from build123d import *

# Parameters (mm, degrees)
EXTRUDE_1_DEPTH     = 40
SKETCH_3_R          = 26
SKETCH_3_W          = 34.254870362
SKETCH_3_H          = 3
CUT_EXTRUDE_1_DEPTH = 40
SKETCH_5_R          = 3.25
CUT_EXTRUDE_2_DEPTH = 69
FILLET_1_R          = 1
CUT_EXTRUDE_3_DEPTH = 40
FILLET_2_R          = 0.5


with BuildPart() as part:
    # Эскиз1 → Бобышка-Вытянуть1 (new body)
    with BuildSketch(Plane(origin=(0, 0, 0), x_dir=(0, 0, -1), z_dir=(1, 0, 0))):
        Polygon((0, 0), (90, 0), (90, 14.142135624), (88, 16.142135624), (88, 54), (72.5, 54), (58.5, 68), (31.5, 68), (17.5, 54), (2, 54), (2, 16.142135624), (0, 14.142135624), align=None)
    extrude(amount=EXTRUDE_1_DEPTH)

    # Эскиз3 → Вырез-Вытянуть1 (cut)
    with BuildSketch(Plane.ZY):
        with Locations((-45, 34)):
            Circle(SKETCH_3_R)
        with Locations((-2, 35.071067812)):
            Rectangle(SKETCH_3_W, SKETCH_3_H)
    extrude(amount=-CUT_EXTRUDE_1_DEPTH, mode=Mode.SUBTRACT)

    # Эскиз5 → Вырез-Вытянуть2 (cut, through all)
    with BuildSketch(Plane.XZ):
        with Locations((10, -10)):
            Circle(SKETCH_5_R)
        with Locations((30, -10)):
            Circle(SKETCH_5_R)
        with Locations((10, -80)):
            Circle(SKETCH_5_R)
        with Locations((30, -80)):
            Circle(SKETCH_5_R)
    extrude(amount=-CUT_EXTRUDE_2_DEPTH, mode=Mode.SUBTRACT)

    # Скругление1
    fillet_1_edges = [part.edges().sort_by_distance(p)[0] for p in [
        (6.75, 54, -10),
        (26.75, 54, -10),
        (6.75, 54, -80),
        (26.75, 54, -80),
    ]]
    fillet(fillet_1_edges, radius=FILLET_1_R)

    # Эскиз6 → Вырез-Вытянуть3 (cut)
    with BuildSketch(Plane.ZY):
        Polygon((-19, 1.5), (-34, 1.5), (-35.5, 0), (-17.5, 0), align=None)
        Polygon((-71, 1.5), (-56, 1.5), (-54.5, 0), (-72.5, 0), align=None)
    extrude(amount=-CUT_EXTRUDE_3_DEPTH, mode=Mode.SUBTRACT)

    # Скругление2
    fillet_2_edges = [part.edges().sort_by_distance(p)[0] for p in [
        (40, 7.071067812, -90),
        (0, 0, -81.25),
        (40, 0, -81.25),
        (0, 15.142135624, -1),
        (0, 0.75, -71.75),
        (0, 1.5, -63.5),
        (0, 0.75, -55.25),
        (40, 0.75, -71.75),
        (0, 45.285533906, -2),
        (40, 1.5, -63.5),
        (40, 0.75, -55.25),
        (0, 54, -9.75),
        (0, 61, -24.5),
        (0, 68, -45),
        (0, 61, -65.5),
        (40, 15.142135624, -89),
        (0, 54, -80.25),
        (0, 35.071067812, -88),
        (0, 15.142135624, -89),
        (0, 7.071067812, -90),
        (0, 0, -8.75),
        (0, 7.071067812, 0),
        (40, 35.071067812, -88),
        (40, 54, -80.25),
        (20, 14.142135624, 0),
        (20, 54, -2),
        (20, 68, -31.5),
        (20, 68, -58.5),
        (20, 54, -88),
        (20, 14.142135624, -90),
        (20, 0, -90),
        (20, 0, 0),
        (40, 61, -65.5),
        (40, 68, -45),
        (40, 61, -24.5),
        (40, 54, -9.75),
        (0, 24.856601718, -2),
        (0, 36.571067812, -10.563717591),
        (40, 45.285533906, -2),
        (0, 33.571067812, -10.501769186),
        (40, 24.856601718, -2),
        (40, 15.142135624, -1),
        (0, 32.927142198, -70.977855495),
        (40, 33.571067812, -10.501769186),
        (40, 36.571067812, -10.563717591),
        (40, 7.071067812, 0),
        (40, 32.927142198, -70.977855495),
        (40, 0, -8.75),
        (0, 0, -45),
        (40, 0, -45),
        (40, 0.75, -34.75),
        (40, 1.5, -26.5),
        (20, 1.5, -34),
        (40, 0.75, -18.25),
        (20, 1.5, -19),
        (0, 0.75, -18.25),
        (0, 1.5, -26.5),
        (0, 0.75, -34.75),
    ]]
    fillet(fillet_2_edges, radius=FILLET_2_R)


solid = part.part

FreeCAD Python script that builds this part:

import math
import FreeCAD as App
import Part
import Sketcher
from FreeCAD import Vector
Q = App.Units.Quantity


def edges_at(feature, points):
    """Names of the edges that pass closest to the given points."""
    edges = feature.Shape.Edges
    near = lambda p: min(range(len(edges)), key=lambda i: edges[i].distToShape(Part.Vertex(*p))[0])
    return sorted({f"Edge{near(p) + 1}" for p in points})

doc = App.newDocument("Part")
body = doc.addObject("PartDesign::Body", "Body")

# Sketch on YZ plane
sketch1 = doc.addObject("Sketcher::SketchObject", "Sketch")
body.addObject(sketch1)
sketch1.AttachmentSupport = (doc.YZ_Plane, [""])
sketch1.MapMode = "FlatFace"
sketch1.addGeometry([
    Part.LineSegment(Vector(0, 0, 0), Vector(0, -90, 0)),  # 0
    Part.LineSegment(Vector(0, -90, 0), Vector(14.1, -90, 0)),  # 1
    Part.LineSegment(Vector(14.1, -90, 0), Vector(16.1, -88, 0)),  # 2
    Part.LineSegment(Vector(16.1, -88, 0), Vector(54, -88, 0)),  # 3
    Part.LineSegment(Vector(54, -88, 0), Vector(54, -72.5, 0)),  # 4
    Part.LineSegment(Vector(54, -72.5, 0), Vector(68, -58.5, 0)),  # 5
    Part.LineSegment(Vector(68, -58.5, 0), Vector(68, -31.5, 0)),  # 6
    Part.LineSegment(Vector(68, -31.5, 0), Vector(54, -17.5, 0)),  # 7
    Part.LineSegment(Vector(54, -17.5, 0), Vector(54, -2, 0)),  # 8
    Part.LineSegment(Vector(54, -2, 0), Vector(16.1, -2, 0)),  # 9
    Part.LineSegment(Vector(16.1, -2, 0), Vector(14.1, 0, 0)),  # 10
    Part.LineSegment(Vector(14.1, 0, 0), Vector(0, 0, 0)),  # 11
], False)
sketch1.addConstraint([
    Sketcher.Constraint("Coincident", 0, 2, 1, 1),
    Sketcher.Constraint("Coincident", 1, 2, 2, 1),
    Sketcher.Constraint("Coincident", 2, 2, 3, 1),
    Sketcher.Constraint("Coincident", 3, 2, 4, 1),
    Sketcher.Constraint("Coincident", 4, 2, 5, 1),
    Sketcher.Constraint("Coincident", 5, 2, 6, 1),
    Sketcher.Constraint("Coincident", 6, 2, 7, 1),
    Sketcher.Constraint("Coincident", 7, 2, 8, 1),
    Sketcher.Constraint("Coincident", 8, 2, 9, 1),
    Sketcher.Constraint("Coincident", 9, 2, 10, 1),
    Sketcher.Constraint("Coincident", 10, 2, 11, 1),
    Sketcher.Constraint("Coincident", 11, 2, 0, 1),
    Sketcher.Constraint("Vertical", 0),
    Sketcher.Constraint("Horizontal", 1),
    Sketcher.Constraint("Horizontal", 3),
    Sketcher.Constraint("Vertical", 4),
    Sketcher.Constraint("Vertical", 6),
    Sketcher.Constraint("Vertical", 8),
    Sketcher.Constraint("Horizontal", 9),
    Sketcher.Constraint("Horizontal", 11),
    Sketcher.Constraint("Coincident", 11, 2, -1, 1),
    Sketcher.Constraint("Parallel", 2, 5),
    Sketcher.Constraint("Perpendicular", 5, 7),
    Sketcher.Constraint("Parallel", 7, 10),
    Sketcher.Constraint("Vertical", 4, 2, 7, 2),
    Sketcher.Constraint("Vertical", 2, 2, 9, 2),
    Sketcher.Constraint("Vertical", 1, 2, 10, 2),
    Sketcher.Constraint("Equal", 4, 8),
    Sketcher.Constraint("Equal", 5, 7),
    Sketcher.Constraint("DistanceY", 0, 2, 0, 1, Q("90 mm")),
    Sketcher.Constraint("DistanceY", 6, 1, 6, 2, Q("27 mm")),
    Sketcher.Constraint("DistanceY", 4, 1, 4, 2, Q("15.5 mm")),
    Sketcher.Constraint("DistanceY", 2, 2, -1, 1, Q("88 mm")),
    Sketcher.Constraint("DistanceX", -1, 1, 3, 2, Q("54 mm")),
    Sketcher.Constraint("DistanceX", 1, 1, 1, 2, Q("14.142136 mm")),
])
pad1 = doc.addObject("PartDesign::Pad", "Pad")
body.addObject(pad1)
pad1.Profile = sketch1
pad1.Length = 40

# Sketch on YZ plane
sketch2 = doc.addObject("Sketcher::SketchObject", "Sketch001")
body.addObject(sketch2)
sketch2.AttachmentSupport = (doc.YZ_Plane, [""])
sketch2.MapMode = "FlatFace"
sketch2.addGeometry([
    Part.LineSegment(Vector(36.6, 15.1, 0), Vector(36.6, -19.1, 0)),
    Part.ArcOfCircle(Part.Circle(Vector(34, -45, 0), Vector(0, 0, 1), 26), math.radians(91), math.radians(444)),
    Part.LineSegment(Vector(33.6, -19, 0), Vector(33.6, 15.1, 0)),
    Part.LineSegment(Vector(33.6, 15.1, 0), Vector(36.6, 15.1, 0)),
], False)
sketch2.addConstraint([
    Sketcher.Constraint("Coincident", 0, 2, 1, 2),
    Sketcher.Constraint("Coincident", 1, 1, 2, 1),
    Sketcher.Constraint("Coincident", 2, 2, 3, 1),
    Sketcher.Constraint("Coincident", 3, 2, 0, 1),
    Sketcher.Constraint("Vertical", 0),
    Sketcher.Constraint("Vertical", 2),
    Sketcher.Constraint("Horizontal", 3),
    Sketcher.Constraint("Radius", 1, Q("26 mm")),
    Sketcher.Constraint("DistanceX", 3, 1, 3, 2, Q("3 mm")),
    Sketcher.Constraint("DistanceX", -1, 1, 1, 3, Q("34 mm")),
    Sketcher.Constraint("DistanceY", 1, 3, -1, 1, Q("45 mm")),
    Sketcher.Constraint("DistanceY", 0, 2, 0, 1, Q("34.25487 mm")),
    Sketcher.Constraint("DistanceY", 2, 1, 2, 2, Q("34.130974 mm")),
])
pocket1 = doc.addObject("PartDesign::Pocket", "Pocket")
body.addObject(pocket1)
pocket1.Profile = sketch2
pocket1.Length = 40
pocket1.Reversed = True

# Sketch on XZ plane
sketch3 = doc.addObject("Sketcher::SketchObject", "Sketch002")
body.addObject(sketch3)
sketch3.AttachmentSupport = (doc.XZ_Plane, [""])
sketch3.MapMode = "FlatFace"
sketch3.addGeometry([
    Part.Circle(Vector(10, -10, 0), Vector(0, 0, 1), 3.2),
    Part.Circle(Vector(30, -10, 0), Vector(0, 0, 1), 3.2),
    Part.Circle(Vector(10, -80, 0), Vector(0, 0, 1), 3.2),
    Part.Circle(Vector(30, -80, 0), Vector(0, 0, 1), 3.2),
], False)
sketch3.addConstraint([
    Sketcher.Constraint("Equal", 0, 1),
    Sketcher.Constraint("Equal", 1, 2),
    Sketcher.Constraint("Equal", 2, 3),
    Sketcher.Constraint("Horizontal", 0, 3, 1, 3),
    Sketcher.Constraint("Horizontal", 2, 3, 3, 3),
    Sketcher.Constraint("Vertical", 0, 3, 2, 3),
    Sketcher.Constraint("Vertical", 1, 3, 3, 3),
    Sketcher.Constraint("Diameter", 0, Q("6.5 mm")),
    Sketcher.Constraint("DistanceX", -1, 1, 0, 3, Q("10 mm")),
    Sketcher.Constraint("DistanceY", 0, 3, -1, 1, Q("10 mm")),
    Sketcher.Constraint("DistanceX", -1, 1, 1, 3, Q("30 mm")),
    Sketcher.Constraint("DistanceY", 2, 3, -1, 1, Q("80 mm")),
])
pocket2 = doc.addObject("PartDesign::Pocket", "Pocket001")
body.addObject(pocket2)
pocket2.Profile = sketch3
pocket2.Type = "ThroughAll"
doc.recompute()

fillet = doc.addObject("PartDesign::Fillet", "Fillet")
body.addObject(fillet)
fillet.Base = (pocket2, edges_at(pocket2, [
    (6.75, 54, -10),
    (26.75, 54, -10),
    (6.75, 54, -80),
    (26.75, 54, -80),
]))
fillet.Radius = 1

# Sketch on YZ plane
sketch4 = doc.addObject("Sketcher::SketchObject", "Sketch003")
body.addObject(sketch4)
sketch4.AttachmentSupport = (doc.YZ_Plane, [""])
sketch4.MapMode = "FlatFace"
sketch4.addGeometry([
    Part.LineSegment(Vector(1.5, -19, 0), Vector(1.5, -34, 0)),  # 0
    Part.LineSegment(Vector(1.5, -34, 0), Vector(0, -35.5, 0)),  # 1
    Part.LineSegment(Vector(0, -35.5, 0), Vector(0, -17.5, 0)),  # 2
    Part.LineSegment(Vector(0, -17.5, 0), Vector(1.5, -19, 0)),  # 3
    Part.LineSegment(Vector(1.5, -56, 0), Vector(1.5, -71, 0)),  # 4
    Part.LineSegment(Vector(1.5, -71, 0), Vector(0, -72.5, 0)),  # 5
    Part.LineSegment(Vector(0, -72.5, 0), Vector(0, -54.5, 0)),  # 6
    Part.LineSegment(Vector(0, -54.5, 0), Vector(1.5, -56, 0)),  # 7
], False)
sketch4.addConstraint([
    Sketcher.Constraint("Coincident", 0, 2, 1, 1),
    Sketcher.Constraint("Coincident", 1, 2, 2, 1),
    Sketcher.Constraint("Coincident", 2, 2, 3, 1),
    Sketcher.Constraint("Coincident", 3, 2, 0, 1),
    Sketcher.Constraint("Coincident", 4, 2, 5, 1),
    Sketcher.Constraint("Coincident", 5, 2, 6, 1),
    Sketcher.Constraint("Coincident", 6, 2, 7, 1),
    Sketcher.Constraint("Coincident", 7, 2, 4, 1),
    Sketcher.Constraint("Vertical", 0),
    Sketcher.Constraint("Vertical", 2),
    Sketcher.Constraint("Vertical", 4),
    Sketcher.Constraint("Vertical", 6),
    Sketcher.Constraint("PointOnObject", 1, 2, -2),
    Sketcher.Constraint("PointOnObject", 5, 2, -2),
    Sketcher.Constraint("Perpendicular", 1, 3),
    Sketcher.Constraint("Perpendicular", 3, 5),
    Sketcher.Constraint("Perpendicular", 5, 7),
    Sketcher.Constraint("Vertical", 3, 2, 4, 2),
    Sketcher.Constraint("Equal", 0, 4),
    Sketcher.Constraint("Equal", 1, 3),
    Sketcher.Constraint("DistanceY", 0, 2, 0, 1, Q("15 mm")),
    Sketcher.Constraint("DistanceY", 2, 1, 2, 2, Q("18 mm")),
    Sketcher.Constraint("DistanceY", 0, 2, -1, 1, Q("34 mm")),
    Sketcher.Constraint("DistanceY", 4, 2, -1, 1, Q("71 mm")),
])
pocket3 = doc.addObject("PartDesign::Pocket", "Pocket002")
body.addObject(pocket3)
pocket3.Profile = sketch4
pocket3.Length = 40
pocket3.Reversed = True
doc.recompute()

fillet2 = doc.addObject("PartDesign::Fillet", "Fillet001")
body.addObject(fillet2)
fillet2.Base = (pocket3, edges_at(pocket3, [
    (40, 7.071, -90),
    (0, 0, -81.25),
    (40, 0, -81.25),
    (0, 15.142, -1),
    (0, 0.75, -71.75),
    (0, 1.5, -63.5),
    (0, 0.75, -55.25),
    (40, 0.75, -71.75),
    (0, 45.286, -2),
    (40, 1.5, -63.5),
    (40, 0.75, -55.25),
    (0, 54, -9.75),
    (0, 61, -24.5),
    (0, 68, -45),
    (0, 61, -65.5),
    (40, 15.142, -89),
    (0, 54, -80.25),
    (0, 35.071, -88),
    (0, 15.142, -89),
    (0, 7.071, -90),
    (0, 0, -8.75),
    (0, 7.071, 0),
    (40, 35.071, -88),
    (40, 54, -80.25),
    (20, 14.142, 0),
    (20, 54, -2),
    (20, 68, -31.5),
    (20, 68, -58.5),
    (20, 54, -88),
    (20, 14.142, -90),
    (20, 0, -90),
    (20, 0, 0),
    (40, 61, -65.5),
    (40, 68, -45),
    (40, 61, -24.5),
    (40, 54, -9.75),
    (0, 24.857, -2),
    (0, 36.571, -10.564),
    (40, 45.286, -2),
    (0, 33.571, -10.502),
    (40, 24.857, -2),
    (40, 15.142, -1),
    (0, 32.927, -70.978),
    (40, 33.571, -10.502),
    (40, 36.571, -10.564),
    (40, 7.071, 0),
    (40, 32.927, -70.978),
    (40, 0, -8.75),
    (0, 0, -45),
    (40, 0, -45),
    (40, 0.75, -34.75),
    (40, 1.5, -26.5),
    (20, 1.5, -34),
    (40, 0.75, -18.25),
    (20, 1.5, -19),
    (0, 0.75, -18.25),
    (0, 1.5, -26.5),
    (0, 0.75, -34.75),
]))
fillet2.Radius = 0.5

doc.recompute()
